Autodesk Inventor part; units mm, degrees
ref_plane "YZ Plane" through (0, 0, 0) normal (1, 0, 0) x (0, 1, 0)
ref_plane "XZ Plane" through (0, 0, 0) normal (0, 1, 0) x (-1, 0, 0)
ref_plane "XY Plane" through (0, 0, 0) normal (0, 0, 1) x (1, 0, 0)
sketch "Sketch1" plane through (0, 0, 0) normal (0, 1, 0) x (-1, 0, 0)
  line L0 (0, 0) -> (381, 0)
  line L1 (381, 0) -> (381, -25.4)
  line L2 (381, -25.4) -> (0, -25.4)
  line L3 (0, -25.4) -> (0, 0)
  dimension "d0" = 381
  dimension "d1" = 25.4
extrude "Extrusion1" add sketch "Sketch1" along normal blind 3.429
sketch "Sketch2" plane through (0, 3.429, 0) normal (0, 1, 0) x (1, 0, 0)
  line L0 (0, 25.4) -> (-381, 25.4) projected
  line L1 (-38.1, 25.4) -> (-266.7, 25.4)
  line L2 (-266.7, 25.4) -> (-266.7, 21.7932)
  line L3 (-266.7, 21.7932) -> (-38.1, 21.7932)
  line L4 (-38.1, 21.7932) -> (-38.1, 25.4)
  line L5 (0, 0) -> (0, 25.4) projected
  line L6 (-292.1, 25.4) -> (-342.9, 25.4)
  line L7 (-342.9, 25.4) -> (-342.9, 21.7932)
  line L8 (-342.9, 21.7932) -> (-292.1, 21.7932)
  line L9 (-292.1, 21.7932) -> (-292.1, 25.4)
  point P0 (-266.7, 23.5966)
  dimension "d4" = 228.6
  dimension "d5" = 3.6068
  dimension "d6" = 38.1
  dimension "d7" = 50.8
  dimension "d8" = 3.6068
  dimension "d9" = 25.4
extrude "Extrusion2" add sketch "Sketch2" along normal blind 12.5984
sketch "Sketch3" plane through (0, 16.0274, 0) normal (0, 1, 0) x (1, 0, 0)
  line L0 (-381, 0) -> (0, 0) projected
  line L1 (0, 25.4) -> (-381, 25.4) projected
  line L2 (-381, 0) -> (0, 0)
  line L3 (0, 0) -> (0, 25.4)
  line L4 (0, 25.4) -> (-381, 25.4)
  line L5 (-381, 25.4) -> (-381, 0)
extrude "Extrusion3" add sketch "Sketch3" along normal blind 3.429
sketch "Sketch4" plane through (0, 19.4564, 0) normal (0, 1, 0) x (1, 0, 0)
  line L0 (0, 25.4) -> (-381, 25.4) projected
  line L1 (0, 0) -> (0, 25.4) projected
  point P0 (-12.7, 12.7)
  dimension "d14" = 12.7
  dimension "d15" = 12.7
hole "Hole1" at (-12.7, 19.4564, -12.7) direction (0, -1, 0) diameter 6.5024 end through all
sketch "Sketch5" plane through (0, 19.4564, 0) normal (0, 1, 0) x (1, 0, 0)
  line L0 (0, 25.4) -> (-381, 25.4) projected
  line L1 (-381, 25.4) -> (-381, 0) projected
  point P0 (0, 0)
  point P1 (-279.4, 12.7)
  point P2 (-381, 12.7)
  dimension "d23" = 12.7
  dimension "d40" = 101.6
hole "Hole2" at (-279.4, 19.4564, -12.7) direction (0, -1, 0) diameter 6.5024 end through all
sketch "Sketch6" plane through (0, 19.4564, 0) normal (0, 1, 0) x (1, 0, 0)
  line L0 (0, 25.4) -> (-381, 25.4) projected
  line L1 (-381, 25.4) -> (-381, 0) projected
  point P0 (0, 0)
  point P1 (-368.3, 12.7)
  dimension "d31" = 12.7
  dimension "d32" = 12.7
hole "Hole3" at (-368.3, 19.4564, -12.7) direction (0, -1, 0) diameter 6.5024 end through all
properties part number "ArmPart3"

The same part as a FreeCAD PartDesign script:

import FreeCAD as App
import Part
import Sketcher
from FreeCAD import Vector
Q = App.Units.Quantity


def add_polygon(sketch, points):
    """Adds a closed chain of lines whose ends are joined by coincident constraints."""
    first, n = sketch.GeometryCount, len(points)
    for a, b in zip(points, points[1:] + points[:1]):
        sketch.addGeometry(Part.LineSegment(App.Vector(*a, 0), App.Vector(*b, 0)), False)
    for i in range(n):
        sketch.addConstraint(Sketcher.Constraint("Coincident", first + i, 2, first + (i + 1) % n, 1))

doc = App.newDocument("Part")
body = doc.addObject("PartDesign::Body", "Body")

sketch1 = body.newObject("Sketcher::SketchObject", "Sketch")
sketch1.AttachmentSupport = (doc.getObject("XZ_Plane"), [""])
sketch1.MapMode = "FlatFace"
add_polygon(sketch1, [(-381, 0), (0, 0), (0, -25.4), (-381, -25.4)])
sketch1.addConstraint([
    Sketcher.Constraint("Horizontal", 0),
    Sketcher.Constraint("Vertical", 1),
    Sketcher.Constraint("Horizontal", 2),
    Sketcher.Constraint("Vertical", 3),
    Sketcher.Constraint("Coincident", 0, 2, -1, 1),
    Sketcher.Constraint("DistanceX", 0, 1, 0, 2, Q("15 in")),
    Sketcher.Constraint("DistanceY", 1, 2, 1, 1, Q("1 in")),
])
pad1 = body.newObject("PartDesign::Pad", "Pad")
pad1.Profile = sketch1
pad1.Length = Q("0.135 in")
pad1.Reversed = True

sketch2 = body.newObject("Sketcher::SketchObject", "Sketch001")
sketch2.AttachmentSupport = (doc.getObject("XZ_Plane"), [""])
sketch2.MapMode = "FlatFace"
sketch2.AttachmentOffset = App.Placement(Vector(0, 0, -0.135 * 25.4), App.Rotation())
add_polygon(sketch2, [(-38.1, -21.7932), (-38.1, -25.4), (-266.7, -25.4), (-266.7, -21.7932)])
add_polygon(sketch2, [(-292.1, -21.7932), (-292.1, -25.4), (-342.9, -25.4), (-342.9, -21.7932)])
sketch2.addConstraint([
    Sketcher.Constraint("Vertical", 0),
    Sketcher.Constraint("Horizontal", 1),
    Sketcher.Constraint("Vertical", 2),
    Sketcher.Constraint("Horizontal", 3),
    Sketcher.Constraint("Vertical", 4),
    Sketcher.Constraint("Horizontal", 5),
    Sketcher.Constraint("Vertical", 6),
    Sketcher.Constraint("Horizontal", 7),
    Sketcher.Constraint("Horizontal", 1, 2, 4, 2),
    Sketcher.Constraint("Horizontal", 3, 2, 6, 2),
    Sketcher.Constraint("DistanceX", 1, 2, 1, 1, Q("9 in")),
    Sketcher.Constraint("DistanceX", 5, 2, 5, 1, Q("2 in")),
    Sketcher.Constraint("DistanceY", 0, 2, -1, 1, Q("1 in")),
    Sketcher.Constraint("DistanceX", 4, 2, 1, 2, Q("1 in")),
    Sketcher.Constraint("DistanceX", 0, 2, -1, 1, Q("1.5 in")),
    Sketcher.Constraint("DistanceY", 0, 2, 0, 1, Q("0.142 in")),
])
pad2 = body.newObject("PartDesign::Pad", "Pad001")
pad2.Profile = sketch2
pad2.Length = Q("0.496 in")
pad2.Reversed = True

sketch3 = body.newObject("Sketcher::SketchObject", "Sketch002")
sketch3.AttachmentSupport = (doc.getObject("XZ_Plane"), [""])
sketch3.MapMode = "FlatFace"
sketch3.AttachmentOffset = App.Placement(Vector(0, 0, -0.631 * 25.4), App.Rotation())
add_polygon(sketch3, [(-381, -25.4), (-381, 0), (0, 0), (0, -25.4)])
sketch3.addConstraint([
    Sketcher.Constraint("Vertical", 0),
    Sketcher.Constraint("Horizontal", 1),
    Sketcher.Constraint("Vertical", 2),
    Sketcher.Constraint("Horizontal", 3),
    Sketcher.Constraint("Coincident", 1, 2, -1, 1),
    Sketcher.Constraint("DistanceX", 1, 1, 1, 2, Q("15 in")),
    Sketcher.Constraint("DistanceY", 0, 1, 0, 2, Q("1 in")),
])
pad3 = body.newObject("PartDesign::Pad", "Pad002")
pad3.Profile = sketch3
pad3.Length = Q("0.135 in")
pad3.Reversed = True

sketch4 = body.newObject("Sketcher::SketchObject", "Sketch003")
sketch4.AttachmentSupport = (doc.getObject("XZ_Plane"), [""])
sketch4.MapMode = "FlatFace"
sketch4.AttachmentOffset = App.Placement(Vector(0, 0, -0.766 * 25.4), App.Rotation())
sketch4.addGeometry(Part.Circle(Vector(-12.7, -12.7, 0), Vector(0, 0, 1), 3.2512), False)
sketch4.addConstraint([
    Sketcher.Constraint("Diameter", 0, Q("0.256 in")),
    Sketcher.Constraint("DistanceX", 0, 3, -1, 1, Q("0.5 in")),
    Sketcher.Constraint("DistanceY", 0, 3, -1, 1, Q("0.5 in")),
])
doc.recompute()
hole = body.newObject("PartDesign::Hole", "Hole")
hole.Profile = sketch4
hole.ThreadType = "None"
hole.Diameter = Q("0.256 in")
hole.DepthType = "ThroughAll"
hole.Reversed = True

sketch5 = body.newObject("Sketcher::SketchObject", "Sketch004")
sketch5.AttachmentSupport = (doc.getObject("XZ_Plane"), [""])
sketch5.MapMode = "FlatFace"
sketch5.AttachmentOffset = App.Placement(Vector(0, 0, -0.766 * 25.4), App.Rotation())
sketch5.addGeometry(Part.Circle(Vector(-279.4, -12.7, 0), Vector(0, 0, 1), 3.2512), False)
sketch5.addConstraint([
    Sketcher.Constraint("Diameter", 0, Q("0.256 in")),
    Sketcher.Constraint("DistanceX", 0, 3, -1, 1, Q("11 in")),
    Sketcher.Constraint("DistanceY", 0, 3, -1, 1, Q("0.5 in")),
])
doc.recompute()
hole2 = body.newObject("PartDesign::Hole", "Hole001")
hole2.Profile = sketch5
hole2.ThreadType = "None"
hole2.Diameter = Q("0.256 in")
hole2.DepthType = "ThroughAll"
hole2.Reversed = True

sketch6 = body.newObject("Sketcher::SketchObject", "Sketch005")
sketch6.AttachmentSupport = (doc.getObject("XZ_Plane"), [""])
sketch6.MapMode = "FlatFace"
sketch6.AttachmentOffset = App.Placement(Vector(0, 0, -0.766 * 25.4), App.Rotation())
sketch6.addGeometry(Part.Circle(Vector(-368.3, -12.7, 0), Vector(0, 0, 1), 3.2512), False)
sketch6.addConstraint([
    Sketcher.Constraint("Diameter", 0, Q("0.256 in")),
    Sketcher.Constraint("DistanceX", 0, 3, -1, 1, Q("14.5 in")),
    Sketcher.Constraint("DistanceY", 0, 3, -1, 1, Q("0.5 in")),
])
doc.recompute()
hole3 = body.newObject("PartDesign::Hole", "Hole002")
hole3.Profile = sketch6
hole3.ThreadType = "None"
hole3.Diameter = Q("0.256 in")
hole3.DepthType = "ThroughAll"
hole3.Reversed = True

doc.recompute()
